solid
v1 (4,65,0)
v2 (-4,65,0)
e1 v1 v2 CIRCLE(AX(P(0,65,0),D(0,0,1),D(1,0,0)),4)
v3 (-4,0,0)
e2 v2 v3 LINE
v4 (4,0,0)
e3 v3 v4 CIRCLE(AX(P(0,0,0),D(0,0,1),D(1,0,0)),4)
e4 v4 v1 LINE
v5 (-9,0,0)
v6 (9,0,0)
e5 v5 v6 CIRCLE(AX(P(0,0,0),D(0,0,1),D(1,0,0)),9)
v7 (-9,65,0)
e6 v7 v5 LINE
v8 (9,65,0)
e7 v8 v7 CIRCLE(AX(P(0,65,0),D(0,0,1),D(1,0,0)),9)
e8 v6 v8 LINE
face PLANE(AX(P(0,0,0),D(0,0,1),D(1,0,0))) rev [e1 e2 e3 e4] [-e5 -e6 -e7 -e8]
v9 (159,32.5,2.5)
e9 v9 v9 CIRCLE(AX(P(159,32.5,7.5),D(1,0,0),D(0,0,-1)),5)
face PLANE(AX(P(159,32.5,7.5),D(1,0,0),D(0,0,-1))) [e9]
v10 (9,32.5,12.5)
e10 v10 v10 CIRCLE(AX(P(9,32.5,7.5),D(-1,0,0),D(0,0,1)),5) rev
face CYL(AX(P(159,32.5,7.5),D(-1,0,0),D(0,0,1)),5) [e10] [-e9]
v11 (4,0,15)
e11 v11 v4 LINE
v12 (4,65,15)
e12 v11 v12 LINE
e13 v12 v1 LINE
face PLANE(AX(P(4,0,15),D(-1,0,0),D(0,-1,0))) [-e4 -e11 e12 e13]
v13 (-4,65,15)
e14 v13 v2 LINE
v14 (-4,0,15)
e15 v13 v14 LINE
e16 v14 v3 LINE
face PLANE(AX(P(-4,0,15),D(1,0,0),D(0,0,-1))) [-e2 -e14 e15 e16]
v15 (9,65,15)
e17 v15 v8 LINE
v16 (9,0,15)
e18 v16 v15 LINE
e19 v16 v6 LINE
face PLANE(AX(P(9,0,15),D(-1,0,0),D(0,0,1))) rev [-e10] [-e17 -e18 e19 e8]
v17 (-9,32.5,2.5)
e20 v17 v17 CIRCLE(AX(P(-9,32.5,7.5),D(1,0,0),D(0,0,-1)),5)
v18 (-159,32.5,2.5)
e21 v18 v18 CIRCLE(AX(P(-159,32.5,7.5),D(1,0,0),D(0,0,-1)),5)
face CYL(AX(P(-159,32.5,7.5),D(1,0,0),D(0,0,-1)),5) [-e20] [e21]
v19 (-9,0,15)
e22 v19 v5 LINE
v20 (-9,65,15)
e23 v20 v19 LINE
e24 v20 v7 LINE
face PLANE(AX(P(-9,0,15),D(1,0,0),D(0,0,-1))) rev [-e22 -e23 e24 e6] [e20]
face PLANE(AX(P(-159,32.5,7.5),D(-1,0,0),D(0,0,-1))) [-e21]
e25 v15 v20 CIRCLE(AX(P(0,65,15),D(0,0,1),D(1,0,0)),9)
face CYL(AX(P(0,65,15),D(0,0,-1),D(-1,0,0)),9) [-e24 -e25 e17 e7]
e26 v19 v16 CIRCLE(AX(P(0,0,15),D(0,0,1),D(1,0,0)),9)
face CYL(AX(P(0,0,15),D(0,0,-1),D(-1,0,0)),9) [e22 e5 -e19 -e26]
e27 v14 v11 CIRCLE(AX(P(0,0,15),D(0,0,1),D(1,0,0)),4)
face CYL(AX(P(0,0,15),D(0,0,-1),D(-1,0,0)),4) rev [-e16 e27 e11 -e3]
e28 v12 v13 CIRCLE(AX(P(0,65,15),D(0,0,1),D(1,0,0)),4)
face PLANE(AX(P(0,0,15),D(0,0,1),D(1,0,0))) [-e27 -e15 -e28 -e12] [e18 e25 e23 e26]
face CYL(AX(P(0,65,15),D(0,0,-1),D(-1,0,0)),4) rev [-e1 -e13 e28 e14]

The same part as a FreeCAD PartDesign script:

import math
import FreeCAD as App
import Part
import Sketcher
Q = App.Units.Quantity

doc = App.newDocument("Part")
params = doc.addObject("Spreadsheet::Sheet", "Params")
for row, (alias, value) in enumerate([
    ("sketch1_radius", "9 mm"),
    ("sketch1_radius2", "4 mm"),
    ("sketch1_height", "65 mm"),
    ("pad1_length", "15 mm"),
    ("sketch2_diameter", "10 mm"),
    ("pad2_length", "150 mm"),
], start=1):
    params.set(f"A{row}", alias)
    params.set(f"B{row}", "=" + value)
    params.setAlias(f"B{row}", alias)

body = doc.addObject("PartDesign::Body", "Body")

sketch1 = doc.addObject("Sketcher::SketchObject", "Sketch")
body.addObject(sketch1)
sketch1.AttachmentSupport = (doc.XY_Plane, [""])
sketch1.MapMode = "FlatFace"
sketch1.addGeometry([
    Part.LineSegment(App.Vector(-9, 65, 0), App.Vector(-9, 0, 0)),
    Part.ArcOfCircle(Part.Circle(App.Vector(0, 0, 0), App.Vector(0, 0, 1), 9), math.radians(180), math.radians(360)),
    Part.LineSegment(App.Vector(9, 0, 0), App.Vector(9, 65, 0)),
    Part.ArcOfCircle(Part.Circle(App.Vector(0, 65, 0), App.Vector(0, 0, 1), 9), math.radians(0), math.radians(180)),
    Part.LineSegment(App.Vector(-4, 0, 0), App.Vector(-4, 65, 0)),
    Part.ArcOfCircle(Part.Circle(App.Vector(0, 65, 0), App.Vector(0, 0, 1), 4), math.radians(0), math.radians(180)),
    Part.LineSegment(App.Vector(4, 65, 0), App.Vector(4, 0, 0)),
    Part.ArcOfCircle(Part.Circle(App.Vector(0, 0, 0), App.Vector(0, 0, 1), 4), math.radians(180), math.radians(360)),
], False)
sketch1.addConstraint([
    Sketcher.Constraint("Tangent", 0, 2, 1, 1),
    Sketcher.Constraint("Tangent", 1, 2, 2, 1),
    Sketcher.Constraint("Tangent", 2, 2, 3, 1),
    Sketcher.Constraint("Tangent", 3, 2, 0, 1),
    Sketcher.Constraint("Tangent", 4, 2, 5, 2),
    Sketcher.Constraint("Tangent", 5, 1, 6, 1),
    Sketcher.Constraint("Tangent", 6, 2, 7, 2),
    Sketcher.Constraint("Tangent", 7, 1, 4, 1),
    Sketcher.Constraint("Vertical", 0),
    Sketcher.Constraint("Vertical", 2),
    Sketcher.Constraint("Vertical", 4),
    Sketcher.Constraint("Vertical", 6),
    Sketcher.Constraint("Coincident", 1, 3, -1, 1),
    Sketcher.Constraint("Coincident", 7, 3, -1, 1),
    Sketcher.Constraint("Horizontal", 5, 3, 2, 2),
    Sketcher.Constraint("Radius", 1, Q("9 mm")),
    Sketcher.Constraint("Radius", 5, Q("4 mm")),
    Sketcher.Constraint("DistanceY", 0, 2, 0, 1, Q("65 mm")),
])
sketch1.setExpression("Constraints[15]", "Params.sketch1_radius")
sketch1.setExpression("Constraints[16]", "Params.sketch1_radius2")
sketch1.setExpression("Constraints[17]", "Params.sketch1_height")
pad1 = doc.addObject("PartDesign::Pad", "Pad")
body.addObject(pad1)
pad1.Profile = sketch1
pad1.setExpression("Length", "Params.pad1_length")

sketch2 = doc.addObject("Sketcher::SketchObject", "Sketch001")
body.addObject(sketch2)
sketch2.AttachmentSupport = (doc.YZ_Plane, [""])
sketch2.MapMode = "FlatFace"
sketch2.AttachmentOffset = App.Placement(App.Vector(0, 0, 9), App.Rotation())
sketch2.addGeometry(Part.Circle(App.Vector(32, 8, 0), App.Vector(0, 0, 1), 5), False)
sketch2.addConstraint([
    Sketcher.Constraint("Diameter", 0, Q("10 mm")),
    Sketcher.Constraint("DistanceX", -1, 1, 0, 3, Q("32.5 mm")),
    Sketcher.Constraint("DistanceY", -1, 1, 0, 3, Q("7.5 mm")),
])
sketch2.setExpression("Constraints[0]", "Params.sketch2_diameter")
pad2 = doc.addObject("PartDesign::Pad", "Pad001")
body.addObject(pad2)
pad2.Profile = sketch2
pad2.setExpression("Length", "Params.pad2_length")
doc.recompute()

mirrored = doc.addObject("PartDesign::Mirrored", "Mirrored")
body.addObject(mirrored)
mirrored.Originals = [pad2]
mirrored.MirrorPlane = (doc.YZ_Plane, [""])
body.Tip = mirrored

doc.recompute()
